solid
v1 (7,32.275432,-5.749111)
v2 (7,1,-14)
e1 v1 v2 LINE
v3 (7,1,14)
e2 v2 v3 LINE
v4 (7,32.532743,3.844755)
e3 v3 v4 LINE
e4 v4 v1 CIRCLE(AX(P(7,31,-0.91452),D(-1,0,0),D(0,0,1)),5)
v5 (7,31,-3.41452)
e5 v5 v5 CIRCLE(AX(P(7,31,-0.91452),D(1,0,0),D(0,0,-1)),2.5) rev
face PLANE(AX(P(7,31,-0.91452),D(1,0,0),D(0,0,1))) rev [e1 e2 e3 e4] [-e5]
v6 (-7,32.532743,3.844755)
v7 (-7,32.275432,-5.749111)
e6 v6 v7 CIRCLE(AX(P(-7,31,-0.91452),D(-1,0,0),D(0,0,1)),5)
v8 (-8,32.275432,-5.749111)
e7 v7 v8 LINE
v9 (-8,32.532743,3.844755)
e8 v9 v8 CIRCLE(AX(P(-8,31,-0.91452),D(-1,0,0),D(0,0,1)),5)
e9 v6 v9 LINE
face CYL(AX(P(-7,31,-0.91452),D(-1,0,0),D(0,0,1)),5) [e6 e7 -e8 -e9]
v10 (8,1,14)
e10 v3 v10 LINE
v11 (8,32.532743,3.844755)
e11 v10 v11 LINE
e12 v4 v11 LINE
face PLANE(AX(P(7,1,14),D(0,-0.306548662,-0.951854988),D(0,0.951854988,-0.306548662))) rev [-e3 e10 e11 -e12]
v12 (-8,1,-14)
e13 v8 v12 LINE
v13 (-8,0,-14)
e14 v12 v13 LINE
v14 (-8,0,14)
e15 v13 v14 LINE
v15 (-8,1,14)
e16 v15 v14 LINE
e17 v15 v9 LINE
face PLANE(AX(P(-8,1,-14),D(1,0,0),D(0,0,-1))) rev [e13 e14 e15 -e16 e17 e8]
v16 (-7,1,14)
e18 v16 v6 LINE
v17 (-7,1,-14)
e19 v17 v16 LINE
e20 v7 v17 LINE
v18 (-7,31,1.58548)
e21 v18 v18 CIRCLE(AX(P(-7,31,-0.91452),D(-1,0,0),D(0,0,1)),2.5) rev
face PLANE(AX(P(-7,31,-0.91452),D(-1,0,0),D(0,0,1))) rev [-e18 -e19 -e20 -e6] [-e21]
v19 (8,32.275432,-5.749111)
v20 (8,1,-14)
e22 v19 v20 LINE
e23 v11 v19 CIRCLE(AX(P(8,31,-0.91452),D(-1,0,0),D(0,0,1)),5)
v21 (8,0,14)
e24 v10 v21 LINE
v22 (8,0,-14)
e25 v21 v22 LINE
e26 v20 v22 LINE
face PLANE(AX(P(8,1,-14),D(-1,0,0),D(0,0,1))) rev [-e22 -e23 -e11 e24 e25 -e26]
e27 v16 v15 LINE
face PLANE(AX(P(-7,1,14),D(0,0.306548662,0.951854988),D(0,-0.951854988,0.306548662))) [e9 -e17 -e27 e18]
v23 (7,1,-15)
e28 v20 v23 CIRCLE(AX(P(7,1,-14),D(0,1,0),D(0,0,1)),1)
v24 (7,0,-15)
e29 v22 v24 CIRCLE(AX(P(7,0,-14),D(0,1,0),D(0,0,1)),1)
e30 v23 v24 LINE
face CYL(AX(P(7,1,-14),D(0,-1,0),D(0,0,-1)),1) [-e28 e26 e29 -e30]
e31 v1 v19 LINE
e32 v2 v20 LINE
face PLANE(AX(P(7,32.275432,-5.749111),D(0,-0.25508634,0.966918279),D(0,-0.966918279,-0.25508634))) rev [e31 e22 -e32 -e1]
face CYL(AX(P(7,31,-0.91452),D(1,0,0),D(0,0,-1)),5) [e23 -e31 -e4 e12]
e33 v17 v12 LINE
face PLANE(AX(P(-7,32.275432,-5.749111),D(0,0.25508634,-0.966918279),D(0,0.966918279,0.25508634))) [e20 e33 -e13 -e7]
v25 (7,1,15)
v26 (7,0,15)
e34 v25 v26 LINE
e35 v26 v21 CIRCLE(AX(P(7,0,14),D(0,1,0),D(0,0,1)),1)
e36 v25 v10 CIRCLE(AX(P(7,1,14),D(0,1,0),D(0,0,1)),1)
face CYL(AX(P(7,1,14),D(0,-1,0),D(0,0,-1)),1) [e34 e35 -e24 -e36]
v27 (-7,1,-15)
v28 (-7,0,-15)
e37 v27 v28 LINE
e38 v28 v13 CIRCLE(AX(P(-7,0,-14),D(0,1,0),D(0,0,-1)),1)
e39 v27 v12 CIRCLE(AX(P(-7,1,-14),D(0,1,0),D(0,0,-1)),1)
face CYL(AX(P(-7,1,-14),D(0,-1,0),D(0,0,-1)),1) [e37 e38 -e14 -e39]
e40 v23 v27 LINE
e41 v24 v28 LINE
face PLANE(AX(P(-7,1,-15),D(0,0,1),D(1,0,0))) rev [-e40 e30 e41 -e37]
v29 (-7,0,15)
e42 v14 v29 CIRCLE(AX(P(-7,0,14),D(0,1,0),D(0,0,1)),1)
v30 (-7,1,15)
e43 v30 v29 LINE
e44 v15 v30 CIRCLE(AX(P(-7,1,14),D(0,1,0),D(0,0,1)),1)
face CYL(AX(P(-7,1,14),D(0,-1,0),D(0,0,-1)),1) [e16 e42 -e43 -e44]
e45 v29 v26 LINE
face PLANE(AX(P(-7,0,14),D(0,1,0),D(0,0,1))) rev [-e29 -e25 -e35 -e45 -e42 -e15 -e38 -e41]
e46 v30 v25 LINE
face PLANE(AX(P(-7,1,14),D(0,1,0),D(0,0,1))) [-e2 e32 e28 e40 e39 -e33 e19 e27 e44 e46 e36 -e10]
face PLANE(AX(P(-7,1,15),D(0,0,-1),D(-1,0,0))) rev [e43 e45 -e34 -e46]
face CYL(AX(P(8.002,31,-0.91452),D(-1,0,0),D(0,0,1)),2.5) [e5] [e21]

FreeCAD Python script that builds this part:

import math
import FreeCAD as App
import Part
import Sketcher

doc = App.newDocument("Part")
body = doc.addObject("PartDesign::Body", "Body")

# Sketch on XZ plane
sketch1 = body.newObject("Sketcher::SketchObject", "Sketch")
sketch1.AttachmentSupport = (doc.getObject("XZ_Plane"), [""])
sketch1.MapMode = "FlatFace"
sketch1.addGeometry([
    Part.LineSegment(App.Vector(7, -15, 0), App.Vector(-7, -15, 0)),  # 0
    Part.ArcOfCircle(Part.Circle(App.Vector(-7, -14, 0), App.Vector(0, 0, 1), 1), math.radians(-180), math.radians(-90)),  # 1
    Part.LineSegment(App.Vector(-8, -14, 0), App.Vector(-8, 14, 0)),  # 2
    Part.ArcOfCircle(Part.Circle(App.Vector(-7, 14, 0), App.Vector(0, 0, 1), 1), math.radians(90), math.radians(180)),  # 3
    Part.LineSegment(App.Vector(-7, 15, 0), App.Vector(7, 15, 0)),  # 4
    Part.ArcOfCircle(Part.Circle(App.Vector(7, 14, 0), App.Vector(0, 0, 1), 1), math.radians(0), math.radians(90)),  # 5
    Part.LineSegment(App.Vector(8, 14, 0), App.Vector(8, -14, 0)),  # 6
    Part.ArcOfCircle(Part.Circle(App.Vector(7, -14, 0), App.Vector(0, 0, 1), 1), math.radians(-90), math.radians(0)),  # 7
], False)
sketch1.addConstraint([
    Sketcher.Constraint("Tangent", 0, 2, 1, 2),
    Sketcher.Constraint("Tangent", 1, 1, 2, 1),
    Sketcher.Constraint("Tangent", 2, 2, 3, 2),
    Sketcher.Constraint("Tangent", 3, 1, 4, 1),
    Sketcher.Constraint("Tangent", 4, 2, 5, 2),
    Sketcher.Constraint("Tangent", 5, 1, 6, 1),
    Sketcher.Constraint("Tangent", 6, 2, 7, 2),
    Sketcher.Constraint("Tangent", 7, 1, 0, 1),
    Sketcher.Constraint("Horizontal", 0),
    Sketcher.Constraint("Vertical", 2),
    Sketcher.Constraint("Horizontal", 4),
    Sketcher.Constraint("Vertical", 6),
    Sketcher.Constraint("Equal", 1, 3),
    Sketcher.Constraint("Equal", 3, 5),
    Sketcher.Constraint("Equal", 5, 7),
    Sketcher.Constraint("Symmetric", 1, 3, 5, 3, -1, 1),
    Sketcher.Constraint("Radius", 1, 1.0),
    Sketcher.Constraint("DistanceX", 0, 2, 0, 1, 14.0),
    Sketcher.Constraint("DistanceY", 2, 1, 2, 2, 28.0),
])
pad1 = body.newObject("PartDesign::Pad", "Pad")
pad1.Profile = sketch1
pad1.Length = 1
pad1.Reversed = True

# Sketch on YZ plane
sketch2 = body.newObject("Sketcher::SketchObject", "Sketch001")
sketch2.AttachmentSupport = (doc.getObject("YZ_Plane"), [""])
sketch2.MapMode = "FlatFace"
sketch2.AttachmentOffset = App.Placement(App.Vector(0, 0, -8), App.Rotation())
sketch2.addGeometry([
    Part.LineSegment(App.Vector(1, 14, 0), App.Vector(33, 4, 0)),
    Part.ArcOfCircle(Part.Circle(App.Vector(31, -1, 0), App.Vector(0, 0, 1), 5), math.radians(-75), math.radians(72)),
    Part.LineSegment(App.Vector(32, -6, 0), App.Vector(1, -14, 0)),
    Part.LineSegment(App.Vector(1, -14, 0), App.Vector(1, 14, 0)),
], False)
sketch2.addConstraint([
    Sketcher.Constraint("Tangent", 0, 2, 1, 2),
    Sketcher.Constraint("Tangent", 1, 1, 2, 1),
    Sketcher.Constraint("Coincident", 2, 2, 3, 1),
    Sketcher.Constraint("Coincident", 3, 2, 0, 1),
    Sketcher.Constraint("Vertical", 3),
    Sketcher.Constraint("Radius", 1, 5.0),
    Sketcher.Constraint("DistanceY", 3, 1, 3, 2, 28.0),
    Sketcher.Constraint("DistanceX", -1, 1, 1, 3, 31.0),
    Sketcher.Constraint("DistanceX", -1, 1, 2, 2, 1.0),
    Sketcher.Constraint("DistanceY", 2, 2, -1, 1, 14.0),
    Sketcher.Constraint("DistanceY", 1, 3, -1, 1, 0.91452),
])
pad2 = body.newObject("PartDesign::Pad", "Pad001")
pad2.Profile = sketch2
pad2.Length = 1
doc.recompute()

mirrored = body.newObject("PartDesign::Mirrored", "Mirrored")
mirrored.Originals = [pad2]
mirrored.MirrorPlane = (doc.getObject("YZ_Plane"), [""])
body.Tip = mirrored

# Sketch on YZ plane
sketch3 = body.newObject("Sketcher::SketchObject", "Sketch002")
sketch3.AttachmentSupport = (doc.getObject("YZ_Plane"), [""])
sketch3.MapMode = "FlatFace"
sketch3.AttachmentOffset = App.Placement(App.Vector(0, 0, -7), App.Rotation())
sketch3.addGeometry(Part.Circle(App.Vector(31, -0.9, 0), App.Vector(0, 0, 1), 2.5), False)
sketch3.addConstraint([
    Sketcher.Constraint("Diameter", 0, 5.0),
    Sketcher.Constraint("DistanceX", -1, 1, 0, 3, 31.0),
    Sketcher.Constraint("DistanceY", 0, 3, -1, 1, 0.91452),
])
pad3 = body.newObject("PartDesign::Pad", "Pad002")
pad3.Profile = sketch3
pad3.Type = "UpToFirst"

doc.recompute()
